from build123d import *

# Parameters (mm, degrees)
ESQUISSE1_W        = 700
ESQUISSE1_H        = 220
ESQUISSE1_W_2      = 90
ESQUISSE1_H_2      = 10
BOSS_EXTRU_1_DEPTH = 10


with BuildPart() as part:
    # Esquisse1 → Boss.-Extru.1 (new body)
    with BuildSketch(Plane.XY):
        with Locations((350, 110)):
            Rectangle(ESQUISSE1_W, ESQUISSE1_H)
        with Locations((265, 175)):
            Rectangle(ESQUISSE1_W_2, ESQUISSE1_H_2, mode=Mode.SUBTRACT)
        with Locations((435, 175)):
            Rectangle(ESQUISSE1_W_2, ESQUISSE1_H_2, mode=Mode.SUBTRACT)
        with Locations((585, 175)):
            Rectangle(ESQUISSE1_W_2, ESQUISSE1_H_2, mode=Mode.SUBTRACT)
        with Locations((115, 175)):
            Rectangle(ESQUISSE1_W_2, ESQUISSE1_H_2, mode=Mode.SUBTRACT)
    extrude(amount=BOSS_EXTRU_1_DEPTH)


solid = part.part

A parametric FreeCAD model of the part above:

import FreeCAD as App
import Part
import Sketcher
from FreeCAD import Vector
Q = App.Units.Quantity

doc = App.newDocument("Part")
params = doc.addObject("Spreadsheet::Sheet", "Params")
for row, (alias, value) in enumerate([
    ("sketch1_width", "700 mm"),
    ("sketch1_width2", "90 mm"),
    ("sketch1_height", "220 mm"),
    ("sketch1_height2", "10 mm"),
    ("pad1_length", "10 mm"),
], start=1):
    params.set(f"A{row}", alias)
    params.set(f"B{row}", "=" + value)
    params.setAlias(f"B{row}", alias)

body = doc.addObject("PartDesign::Body", "Body")

sketch1 = doc.addObject("Sketcher::SketchObject", "Sketch")
body.addObject(sketch1)
sketch1.AttachmentSupport = (doc.XY_Plane, [""])
sketch1.MapMode = "FlatFace"
sketch1.addGeometry([
    Part.LineSegment(Vector(0, 220, 0), Vector(0, 0, 0)),
    Part.LineSegment(Vector(0, 0, 0), Vector(700, 0, 0)),
    Part.LineSegment(Vector(700, 0, 0), Vector(700, 220, 0)),
    Part.LineSegment(Vector(700, 220, 0), Vector(0, 220, 0)),
    Part.LineSegment(Vector(160, 170, 0), Vector(70, 170, 0)),
    Part.LineSegment(Vector(70, 170, 0), Vector(70, 180, 0)),
    Part.LineSegment(Vector(70, 180, 0), Vector(160, 180, 0)),
    Part.LineSegment(Vector(160, 180, 0), Vector(160, 170, 0)),
    Part.LineSegment(Vector(310, 170, 0), Vector(220, 170, 0)),
    Part.LineSegment(Vector(220, 170, 0), Vector(220, 180, 0)),
    Part.LineSegment(Vector(220, 180, 0), Vector(310, 180, 0)),
    Part.LineSegment(Vector(310, 180, 0), Vector(310, 170, 0)),
    Part.LineSegment(Vector(480, 170, 0), Vector(390, 170, 0)),
    Part.LineSegment(Vector(390, 170, 0), Vector(390, 180, 0)),
    Part.LineSegment(Vector(390, 180, 0), Vector(480, 180, 0)),
    Part.LineSegment(Vector(480, 180, 0), Vector(480, 170, 0)),
    Part.LineSegment(Vector(630, 170, 0), Vector(540, 170, 0)),
    Part.LineSegment(Vector(540, 170, 0), Vector(540, 180, 0)),
    Part.LineSegment(Vector(540, 180, 0), Vector(630, 180, 0)),
    Part.LineSegment(Vector(630, 180, 0), Vector(630, 170, 0)),
], False)
sketch1.addConstraint([
    Sketcher.Constraint("Coincident", 0, 2, 1, 1),
    Sketcher.Constraint("Coincident", 1, 2, 2, 1),
    Sketcher.Constraint("Coincident", 2, 2, 3, 1),
    Sketcher.Constraint("Coincident", 3, 2, 0, 1),
    Sketcher.Constraint("Coincident", 4, 2, 5, 1),
    Sketcher.Constraint("Coincident", 5, 2, 6, 1),
    Sketcher.Constraint("Coincident", 6, 2, 7, 1),
    Sketcher.Constraint("Coincident", 7, 2, 4, 1),
    Sketcher.Constraint("Coincident", 8, 2, 9, 1),
    Sketcher.Constraint("Coincident", 9, 2, 10, 1),
    Sketcher.Constraint("Coincident", 10, 2, 11, 1),
    Sketcher.Constraint("Coincident", 11, 2, 8, 1),
    Sketcher.Constraint("Coincident", 12, 2, 13, 1),
    Sketcher.Constraint("Coincident", 13, 2, 14, 1),
    Sketcher.Constraint("Coincident", 14, 2, 15, 1),
    Sketcher.Constraint("Coincident", 15, 2, 12, 1),
    Sketcher.Constraint("Coincident", 16, 2, 17, 1),
    Sketcher.Constraint("Coincident", 17, 2, 18, 1),
    Sketcher.Constraint("Coincident", 18, 2, 19, 1),
    Sketcher.Constraint("Coincident", 19, 2, 16, 1),
    Sketcher.Constraint("Vertical", 0),
    Sketcher.Constraint("Horizontal", 1),
    Sketcher.Constraint("Vertical", 2),
    Sketcher.Constraint("Horizontal", 3),
    Sketcher.Constraint("Horizontal", 4),
    Sketcher.Constraint("Vertical", 5),
    Sketcher.Constraint("Horizontal", 6),
    Sketcher.Constraint("Vertical", 7),
    Sketcher.Constraint("Horizontal", 8),
    Sketcher.Constraint("Vertical", 9),
    Sketcher.Constraint("Horizontal", 10),
    Sketcher.Constraint("Vertical", 11),
    Sketcher.Constraint("Horizontal", 12),
    Sketcher.Constraint("Vertical", 13),
    Sketcher.Constraint("Horizontal", 14),
    Sketcher.Constraint("Vertical", 15),
    Sketcher.Constraint("Horizontal", 16),
    Sketcher.Constraint("Vertical", 17),
    Sketcher.Constraint("Horizontal", 18),
    Sketcher.Constraint("Vertical", 19),
    Sketcher.Constraint("Coincident", 0, 2, -1, 1),
    Sketcher.Constraint("Horizontal", 7, 2, 8, 2),
    Sketcher.Constraint("Horizontal", 6, 2, 9, 2),
    Sketcher.Constraint("Horizontal", 11, 2, 12, 2),
    Sketcher.Constraint("Horizontal", 10, 2, 13, 2),
    Sketcher.Constraint("Horizontal", 15, 2, 16, 2),
    Sketcher.Constraint("Horizontal", 14, 2, 17, 2),
    Sketcher.Constraint("Equal", 6, 8),
    Sketcher.Constraint("Equal", 10, 12),
    Sketcher.Constraint("Equal", 14, 16),
    Sketcher.Constraint("DistanceX", 1, 1, 1, 2, Q("700 mm")),
    Sketcher.Constraint("DistanceX", 4, 2, 4, 1, Q("90 mm")),
    Sketcher.Constraint("DistanceY", 0, 2, 0, 1, Q("220 mm")),
    Sketcher.Constraint("DistanceY", 5, 1, 5, 2, Q("10 mm")),
    Sketcher.Constraint("DistanceX", -1, 1, 4, 2, Q("70 mm")),
    Sketcher.Constraint("DistanceY", -1, 1, 4, 2, Q("170 mm")),
    Sketcher.Constraint("DistanceX", -1, 1, 8, 2, Q("220 mm")),
    Sketcher.Constraint("DistanceX", -1, 1, 12, 2, Q("390 mm")),
    Sketcher.Constraint("DistanceX", -1, 1, 16, 2, Q("540 mm")),
])
sketch1.setExpression("Constraints[50]", "Params.sketch1_width")
sketch1.setExpression("Constraints[51]", "Params.sketch1_width2")
sketch1.setExpression("Constraints[52]", "Params.sketch1_height")
sketch1.setExpression("Constraints[53]", "Params.sketch1_height2")
pad1 = doc.addObject("PartDesign::Pad", "Pad")
body.addObject(pad1)
pad1.Profile = sketch1
pad1.setExpression("Length", "Params.pad1_length")

doc.recompute()
